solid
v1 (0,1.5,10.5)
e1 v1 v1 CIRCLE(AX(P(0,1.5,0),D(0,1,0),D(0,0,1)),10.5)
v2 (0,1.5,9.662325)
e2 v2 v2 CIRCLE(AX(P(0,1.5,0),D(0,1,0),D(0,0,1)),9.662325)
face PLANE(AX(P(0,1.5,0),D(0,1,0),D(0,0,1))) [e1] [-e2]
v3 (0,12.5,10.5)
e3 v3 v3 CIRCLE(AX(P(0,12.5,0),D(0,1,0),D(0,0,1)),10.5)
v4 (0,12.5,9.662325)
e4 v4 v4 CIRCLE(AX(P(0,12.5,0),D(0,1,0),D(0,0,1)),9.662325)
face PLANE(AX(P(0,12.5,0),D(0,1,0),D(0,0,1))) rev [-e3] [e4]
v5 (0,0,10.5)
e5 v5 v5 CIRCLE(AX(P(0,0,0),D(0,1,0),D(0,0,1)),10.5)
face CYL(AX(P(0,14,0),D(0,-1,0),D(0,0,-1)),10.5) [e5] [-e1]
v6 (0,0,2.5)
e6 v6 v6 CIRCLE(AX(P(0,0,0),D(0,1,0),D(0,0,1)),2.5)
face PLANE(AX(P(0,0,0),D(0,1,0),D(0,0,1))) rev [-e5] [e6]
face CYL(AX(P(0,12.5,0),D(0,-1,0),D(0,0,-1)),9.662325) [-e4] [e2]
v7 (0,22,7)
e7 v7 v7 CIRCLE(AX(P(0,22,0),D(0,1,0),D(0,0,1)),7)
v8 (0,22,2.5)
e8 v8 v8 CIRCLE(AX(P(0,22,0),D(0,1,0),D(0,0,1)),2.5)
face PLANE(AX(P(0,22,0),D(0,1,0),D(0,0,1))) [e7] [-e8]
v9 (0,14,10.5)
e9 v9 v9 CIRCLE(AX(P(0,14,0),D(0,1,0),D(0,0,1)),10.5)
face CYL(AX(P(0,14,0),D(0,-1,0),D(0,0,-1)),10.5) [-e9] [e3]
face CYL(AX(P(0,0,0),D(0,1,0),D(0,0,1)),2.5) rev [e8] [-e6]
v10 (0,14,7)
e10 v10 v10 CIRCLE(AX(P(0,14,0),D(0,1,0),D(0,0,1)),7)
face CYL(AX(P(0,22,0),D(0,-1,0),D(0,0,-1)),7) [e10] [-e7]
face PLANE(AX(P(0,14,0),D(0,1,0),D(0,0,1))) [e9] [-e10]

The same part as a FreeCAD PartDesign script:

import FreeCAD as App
import Part
import Sketcher
from FreeCAD import Vector

doc = App.newDocument("Part")
body = doc.addObject("PartDesign::Body", "Body")

sketch1 = body.newObject("Sketcher::SketchObject", "Sketch")
sketch1.AttachmentSupport = (doc.getObject("XZ_Plane"), [""])
sketch1.MapMode = "FlatFace"
sketch1.addGeometry(Part.Circle(Vector(0, 0, 0), Vector(0, 0, 1), 10.5), False)
sketch1.addConstraint([
    Sketcher.Constraint("Coincident", 0, 3, -1, 1),
    Sketcher.Constraint("Diameter", 0, 21.0),
])
pad1 = body.newObject("PartDesign::Pad", "Pad")
pad1.Profile = sketch1
pad1.Length = 14
pad1.Reversed = True

sketch2 = body.newObject("Sketcher::SketchObject", "Sketch001")
sketch2.AttachmentSupport = (doc.getObject("XZ_Plane"), [""])
sketch2.MapMode = "FlatFace"
sketch2.AttachmentOffset = App.Placement(Vector(0, 0, -14), App.Rotation())
sketch2.addGeometry(Part.Circle(Vector(0, 0, 0), Vector(0, 0, 1), 7), False)
sketch2.addConstraint([
    Sketcher.Constraint("Coincident", 0, 3, -1, 1),
    Sketcher.Constraint("Diameter", 0, 14.0),
])
pad2 = body.newObject("PartDesign::Pad", "Pad001")
pad2.Profile = sketch2
pad2.Length = 8
pad2.Reversed = True

sketch3 = body.newObject("Sketcher::SketchObject", "Sketch002")
sketch3.AttachmentSupport = (doc.getObject("XZ_Plane"), [""])
sketch3.MapMode = "FlatFace"
sketch3.AttachmentOffset = App.Placement(Vector(0, 0, -22), App.Rotation())
sketch3.addGeometry(Part.Circle(Vector(0, 0, 0), Vector(0, 0, 1), 2.5), False)
sketch3.addConstraint([
    Sketcher.Constraint("Coincident", 0, 3, -1, 1),
    Sketcher.Constraint("Diameter", 0, 5.0),
])
pocket1 = body.newObject("PartDesign::Pocket", "Pocket")
pocket1.Profile = sketch3
pocket1.Type = "ThroughAll"
pocket1.Reversed = True

sketch4 = body.newObject("Sketcher::SketchObject", "Sketch003")
sketch4.AttachmentSupport = (doc.getObject("XZ_Plane"), [""])
sketch4.MapMode = "FlatFace"
sketch4.AttachmentOffset = App.Placement(Vector(0, 0, -1.5), App.Rotation())
sketch4.addGeometry([
    Part.LineSegment(Vector(-15.196, -15.196, 0), Vector(-15.196, 15.196, 0)),
    Part.LineSegment(Vector(-15.196, 15.196, 0), Vector(15.196, 15.196, 0)),
    Part.LineSegment(Vector(15.196, 15.196, 0), Vector(15.196, -15.196, 0)),
    Part.LineSegment(Vector(15.196, -15.196, 0), Vector(-15.196, -15.196, 0)),
    Part.Circle(Vector(0, 0, 0), Vector(0, 0, 1), 9.662325),
], False)
sketch4.addConstraint([
    Sketcher.Constraint("Coincident", 0, 2, 1, 1),
    Sketcher.Constraint("Coincident", 1, 2, 2, 1),
    Sketcher.Constraint("Coincident", 2, 2, 3, 1),
    Sketcher.Constraint("Coincident", 3, 2, 0, 1),
    Sketcher.Constraint("Vertical", 0),
    Sketcher.Constraint("Horizontal", 1),
    Sketcher.Constraint("Vertical", 2),
    Sketcher.Constraint("Horizontal", 3),
    Sketcher.Constraint("Coincident", 4, 3, -1, 1),
    Sketcher.Constraint("Symmetric", 0, 2, 2, 2, -1, 1),
    Sketcher.Constraint("Equal", 3, 0),
    Sketcher.Constraint("Diameter", 4, 19.324651),
    Sketcher.Constraint("DistanceX", 1, 1, 1, 2, 30.392),
])
pocket2 = body.newObject("PartDesign::Pocket", "Pocket001")
pocket2.Profile = sketch4
pocket2.Length = 11

doc.recompute()
